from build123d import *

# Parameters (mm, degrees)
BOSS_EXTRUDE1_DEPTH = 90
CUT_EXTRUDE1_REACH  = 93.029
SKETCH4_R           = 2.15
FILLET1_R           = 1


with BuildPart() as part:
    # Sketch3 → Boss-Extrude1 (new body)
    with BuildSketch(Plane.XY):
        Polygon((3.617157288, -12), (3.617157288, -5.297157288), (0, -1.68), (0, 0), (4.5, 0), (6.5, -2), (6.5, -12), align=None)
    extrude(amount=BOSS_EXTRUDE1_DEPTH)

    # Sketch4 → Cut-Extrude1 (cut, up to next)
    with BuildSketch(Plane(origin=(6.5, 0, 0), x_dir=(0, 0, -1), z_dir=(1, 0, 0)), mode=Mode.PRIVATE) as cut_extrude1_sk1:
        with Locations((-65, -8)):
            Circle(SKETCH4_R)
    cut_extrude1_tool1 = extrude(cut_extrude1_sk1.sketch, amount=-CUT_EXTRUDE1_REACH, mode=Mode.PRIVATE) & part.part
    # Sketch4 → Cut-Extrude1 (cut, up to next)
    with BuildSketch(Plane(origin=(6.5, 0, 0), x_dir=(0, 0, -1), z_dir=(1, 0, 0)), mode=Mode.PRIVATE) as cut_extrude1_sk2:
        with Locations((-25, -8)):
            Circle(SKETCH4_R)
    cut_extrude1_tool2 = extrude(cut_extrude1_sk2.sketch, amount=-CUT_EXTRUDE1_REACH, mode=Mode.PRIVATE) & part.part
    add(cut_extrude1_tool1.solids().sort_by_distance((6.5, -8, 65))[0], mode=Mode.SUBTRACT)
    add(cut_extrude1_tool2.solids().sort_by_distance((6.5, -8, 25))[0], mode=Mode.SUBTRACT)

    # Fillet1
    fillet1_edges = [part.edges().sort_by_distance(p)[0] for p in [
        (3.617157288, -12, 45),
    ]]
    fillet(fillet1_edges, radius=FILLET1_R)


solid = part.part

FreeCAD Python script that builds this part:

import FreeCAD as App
import Part
import Sketcher
from FreeCAD import Vector
Q = App.Units.Quantity


def edges_at(feature, points):
    """Names of the edges that pass closest to the given points."""
    edges = feature.Shape.Edges
    near = lambda p: min(range(len(edges)), key=lambda i: edges[i].distToShape(Part.Vertex(*p))[0])
    return sorted({f"Edge{near(p) + 1}" for p in points})


def add_polygon(sketch, points):
    """Adds a closed chain of lines whose ends are joined by coincident constraints."""
    first, n = sketch.GeometryCount, len(points)
    for a, b in zip(points, points[1:] + points[:1]):
        sketch.addGeometry(Part.LineSegment(App.Vector(*a, 0), App.Vector(*b, 0)), False)
    for i in range(n):
        sketch.addConstraint(Sketcher.Constraint("Coincident", first + i, 2, first + (i + 1) % n, 1))

doc = App.newDocument("Part")
body = doc.addObject("PartDesign::Body", "Body")

# Sketch on XY plane
sketch1 = body.newObject("Sketcher::SketchObject", "Sketch")
sketch1.AttachmentSupport = (doc.getObject("XY_Plane"), [""])
sketch1.MapMode = "FlatFace"
add_polygon(sketch1, [(3.6, -5.3), (3.6, -12), (6.5, -12), (6.5, -2), (4.5, 0), (0, 0), (0, -1.7)])  # lines 0-6
sketch1.addConstraint([
    Sketcher.Constraint("Vertical", 0),
    Sketcher.Constraint("Horizontal", 1),
    Sketcher.Constraint("Vertical", 2),
    Sketcher.Constraint("Horizontal", 4),
    Sketcher.Constraint("Vertical", 5),
    Sketcher.Constraint("Coincident", 4, 2, -1, 1),
    Sketcher.Constraint("Parallel", 3, 6),
    Sketcher.Constraint("DistanceY", 2, 1, 2, 2, 10.0),
    Sketcher.Constraint("Angle", 3, Q("135 deg")),
    Sketcher.Constraint("DistanceX", 4, 2, 4, 1, 4.5),
    Sketcher.Constraint("DistanceY", 0, 2, -1, 1, 12.0),
    Sketcher.Constraint("DistanceY", 5, 2, 5, 1, 1.68),
    Sketcher.Constraint("DistanceX", 1, 1, 1, 2, 2.882843),
])
pad1 = body.newObject("PartDesign::Pad", "Pad")
pad1.Profile = sketch1
pad1.Length = 90

# Sketch on YZ plane
sketch2 = body.newObject("Sketcher::SketchObject", "Sketch001")
sketch2.AttachmentSupport = (doc.getObject("YZ_Plane"), [""])
sketch2.MapMode = "FlatFace"
sketch2.AttachmentOffset = App.Placement(Vector(0, 0, 6.5), App.Rotation())
sketch2.addGeometry(Part.Circle(Vector(-8, 65, 0), Vector(0, 0, 1), 2.1), False)
sketch2.addConstraint([
    Sketcher.Constraint("Diameter", 0, 4.3),
    Sketcher.Constraint("DistanceX", 0, 3, -1, 1, 8.0),
    Sketcher.Constraint("DistanceY", -1, 1, 0, 3, 65.0),
])
pocket1 = body.newObject("PartDesign::Pocket", "Pocket")
pocket1.Profile = sketch2
pocket1.Type = "UpToFirst"

# Sketch on YZ plane
sketch3 = body.newObject("Sketcher::SketchObject", "Sketch002")
sketch3.AttachmentSupport = (doc.getObject("YZ_Plane"), [""])
sketch3.MapMode = "FlatFace"
sketch3.AttachmentOffset = App.Placement(Vector(0, 0, 6.5), App.Rotation())
sketch3.addGeometry(Part.Circle(Vector(-8, 25, 0), Vector(0, 0, 1), 2.1), False)
sketch3.addConstraint([
    Sketcher.Constraint("Diameter", 0, 4.3),
    Sketcher.Constraint("DistanceX", 0, 3, -1, 1, 8.0),
    Sketcher.Constraint("DistanceY", -1, 1, 0, 3, 25.0),
])
pocket2 = body.newObject("PartDesign::Pocket", "Pocket001")
pocket2.Profile = sketch3
pocket2.Type = "UpToFirst"
doc.recompute()

fillet = body.newObject("PartDesign::Fillet", "Fillet")
fillet.Base = (pocket2, edges_at(pocket2, [(3.617, -12, 45)]))
fillet.Radius = 1

doc.recompute()
